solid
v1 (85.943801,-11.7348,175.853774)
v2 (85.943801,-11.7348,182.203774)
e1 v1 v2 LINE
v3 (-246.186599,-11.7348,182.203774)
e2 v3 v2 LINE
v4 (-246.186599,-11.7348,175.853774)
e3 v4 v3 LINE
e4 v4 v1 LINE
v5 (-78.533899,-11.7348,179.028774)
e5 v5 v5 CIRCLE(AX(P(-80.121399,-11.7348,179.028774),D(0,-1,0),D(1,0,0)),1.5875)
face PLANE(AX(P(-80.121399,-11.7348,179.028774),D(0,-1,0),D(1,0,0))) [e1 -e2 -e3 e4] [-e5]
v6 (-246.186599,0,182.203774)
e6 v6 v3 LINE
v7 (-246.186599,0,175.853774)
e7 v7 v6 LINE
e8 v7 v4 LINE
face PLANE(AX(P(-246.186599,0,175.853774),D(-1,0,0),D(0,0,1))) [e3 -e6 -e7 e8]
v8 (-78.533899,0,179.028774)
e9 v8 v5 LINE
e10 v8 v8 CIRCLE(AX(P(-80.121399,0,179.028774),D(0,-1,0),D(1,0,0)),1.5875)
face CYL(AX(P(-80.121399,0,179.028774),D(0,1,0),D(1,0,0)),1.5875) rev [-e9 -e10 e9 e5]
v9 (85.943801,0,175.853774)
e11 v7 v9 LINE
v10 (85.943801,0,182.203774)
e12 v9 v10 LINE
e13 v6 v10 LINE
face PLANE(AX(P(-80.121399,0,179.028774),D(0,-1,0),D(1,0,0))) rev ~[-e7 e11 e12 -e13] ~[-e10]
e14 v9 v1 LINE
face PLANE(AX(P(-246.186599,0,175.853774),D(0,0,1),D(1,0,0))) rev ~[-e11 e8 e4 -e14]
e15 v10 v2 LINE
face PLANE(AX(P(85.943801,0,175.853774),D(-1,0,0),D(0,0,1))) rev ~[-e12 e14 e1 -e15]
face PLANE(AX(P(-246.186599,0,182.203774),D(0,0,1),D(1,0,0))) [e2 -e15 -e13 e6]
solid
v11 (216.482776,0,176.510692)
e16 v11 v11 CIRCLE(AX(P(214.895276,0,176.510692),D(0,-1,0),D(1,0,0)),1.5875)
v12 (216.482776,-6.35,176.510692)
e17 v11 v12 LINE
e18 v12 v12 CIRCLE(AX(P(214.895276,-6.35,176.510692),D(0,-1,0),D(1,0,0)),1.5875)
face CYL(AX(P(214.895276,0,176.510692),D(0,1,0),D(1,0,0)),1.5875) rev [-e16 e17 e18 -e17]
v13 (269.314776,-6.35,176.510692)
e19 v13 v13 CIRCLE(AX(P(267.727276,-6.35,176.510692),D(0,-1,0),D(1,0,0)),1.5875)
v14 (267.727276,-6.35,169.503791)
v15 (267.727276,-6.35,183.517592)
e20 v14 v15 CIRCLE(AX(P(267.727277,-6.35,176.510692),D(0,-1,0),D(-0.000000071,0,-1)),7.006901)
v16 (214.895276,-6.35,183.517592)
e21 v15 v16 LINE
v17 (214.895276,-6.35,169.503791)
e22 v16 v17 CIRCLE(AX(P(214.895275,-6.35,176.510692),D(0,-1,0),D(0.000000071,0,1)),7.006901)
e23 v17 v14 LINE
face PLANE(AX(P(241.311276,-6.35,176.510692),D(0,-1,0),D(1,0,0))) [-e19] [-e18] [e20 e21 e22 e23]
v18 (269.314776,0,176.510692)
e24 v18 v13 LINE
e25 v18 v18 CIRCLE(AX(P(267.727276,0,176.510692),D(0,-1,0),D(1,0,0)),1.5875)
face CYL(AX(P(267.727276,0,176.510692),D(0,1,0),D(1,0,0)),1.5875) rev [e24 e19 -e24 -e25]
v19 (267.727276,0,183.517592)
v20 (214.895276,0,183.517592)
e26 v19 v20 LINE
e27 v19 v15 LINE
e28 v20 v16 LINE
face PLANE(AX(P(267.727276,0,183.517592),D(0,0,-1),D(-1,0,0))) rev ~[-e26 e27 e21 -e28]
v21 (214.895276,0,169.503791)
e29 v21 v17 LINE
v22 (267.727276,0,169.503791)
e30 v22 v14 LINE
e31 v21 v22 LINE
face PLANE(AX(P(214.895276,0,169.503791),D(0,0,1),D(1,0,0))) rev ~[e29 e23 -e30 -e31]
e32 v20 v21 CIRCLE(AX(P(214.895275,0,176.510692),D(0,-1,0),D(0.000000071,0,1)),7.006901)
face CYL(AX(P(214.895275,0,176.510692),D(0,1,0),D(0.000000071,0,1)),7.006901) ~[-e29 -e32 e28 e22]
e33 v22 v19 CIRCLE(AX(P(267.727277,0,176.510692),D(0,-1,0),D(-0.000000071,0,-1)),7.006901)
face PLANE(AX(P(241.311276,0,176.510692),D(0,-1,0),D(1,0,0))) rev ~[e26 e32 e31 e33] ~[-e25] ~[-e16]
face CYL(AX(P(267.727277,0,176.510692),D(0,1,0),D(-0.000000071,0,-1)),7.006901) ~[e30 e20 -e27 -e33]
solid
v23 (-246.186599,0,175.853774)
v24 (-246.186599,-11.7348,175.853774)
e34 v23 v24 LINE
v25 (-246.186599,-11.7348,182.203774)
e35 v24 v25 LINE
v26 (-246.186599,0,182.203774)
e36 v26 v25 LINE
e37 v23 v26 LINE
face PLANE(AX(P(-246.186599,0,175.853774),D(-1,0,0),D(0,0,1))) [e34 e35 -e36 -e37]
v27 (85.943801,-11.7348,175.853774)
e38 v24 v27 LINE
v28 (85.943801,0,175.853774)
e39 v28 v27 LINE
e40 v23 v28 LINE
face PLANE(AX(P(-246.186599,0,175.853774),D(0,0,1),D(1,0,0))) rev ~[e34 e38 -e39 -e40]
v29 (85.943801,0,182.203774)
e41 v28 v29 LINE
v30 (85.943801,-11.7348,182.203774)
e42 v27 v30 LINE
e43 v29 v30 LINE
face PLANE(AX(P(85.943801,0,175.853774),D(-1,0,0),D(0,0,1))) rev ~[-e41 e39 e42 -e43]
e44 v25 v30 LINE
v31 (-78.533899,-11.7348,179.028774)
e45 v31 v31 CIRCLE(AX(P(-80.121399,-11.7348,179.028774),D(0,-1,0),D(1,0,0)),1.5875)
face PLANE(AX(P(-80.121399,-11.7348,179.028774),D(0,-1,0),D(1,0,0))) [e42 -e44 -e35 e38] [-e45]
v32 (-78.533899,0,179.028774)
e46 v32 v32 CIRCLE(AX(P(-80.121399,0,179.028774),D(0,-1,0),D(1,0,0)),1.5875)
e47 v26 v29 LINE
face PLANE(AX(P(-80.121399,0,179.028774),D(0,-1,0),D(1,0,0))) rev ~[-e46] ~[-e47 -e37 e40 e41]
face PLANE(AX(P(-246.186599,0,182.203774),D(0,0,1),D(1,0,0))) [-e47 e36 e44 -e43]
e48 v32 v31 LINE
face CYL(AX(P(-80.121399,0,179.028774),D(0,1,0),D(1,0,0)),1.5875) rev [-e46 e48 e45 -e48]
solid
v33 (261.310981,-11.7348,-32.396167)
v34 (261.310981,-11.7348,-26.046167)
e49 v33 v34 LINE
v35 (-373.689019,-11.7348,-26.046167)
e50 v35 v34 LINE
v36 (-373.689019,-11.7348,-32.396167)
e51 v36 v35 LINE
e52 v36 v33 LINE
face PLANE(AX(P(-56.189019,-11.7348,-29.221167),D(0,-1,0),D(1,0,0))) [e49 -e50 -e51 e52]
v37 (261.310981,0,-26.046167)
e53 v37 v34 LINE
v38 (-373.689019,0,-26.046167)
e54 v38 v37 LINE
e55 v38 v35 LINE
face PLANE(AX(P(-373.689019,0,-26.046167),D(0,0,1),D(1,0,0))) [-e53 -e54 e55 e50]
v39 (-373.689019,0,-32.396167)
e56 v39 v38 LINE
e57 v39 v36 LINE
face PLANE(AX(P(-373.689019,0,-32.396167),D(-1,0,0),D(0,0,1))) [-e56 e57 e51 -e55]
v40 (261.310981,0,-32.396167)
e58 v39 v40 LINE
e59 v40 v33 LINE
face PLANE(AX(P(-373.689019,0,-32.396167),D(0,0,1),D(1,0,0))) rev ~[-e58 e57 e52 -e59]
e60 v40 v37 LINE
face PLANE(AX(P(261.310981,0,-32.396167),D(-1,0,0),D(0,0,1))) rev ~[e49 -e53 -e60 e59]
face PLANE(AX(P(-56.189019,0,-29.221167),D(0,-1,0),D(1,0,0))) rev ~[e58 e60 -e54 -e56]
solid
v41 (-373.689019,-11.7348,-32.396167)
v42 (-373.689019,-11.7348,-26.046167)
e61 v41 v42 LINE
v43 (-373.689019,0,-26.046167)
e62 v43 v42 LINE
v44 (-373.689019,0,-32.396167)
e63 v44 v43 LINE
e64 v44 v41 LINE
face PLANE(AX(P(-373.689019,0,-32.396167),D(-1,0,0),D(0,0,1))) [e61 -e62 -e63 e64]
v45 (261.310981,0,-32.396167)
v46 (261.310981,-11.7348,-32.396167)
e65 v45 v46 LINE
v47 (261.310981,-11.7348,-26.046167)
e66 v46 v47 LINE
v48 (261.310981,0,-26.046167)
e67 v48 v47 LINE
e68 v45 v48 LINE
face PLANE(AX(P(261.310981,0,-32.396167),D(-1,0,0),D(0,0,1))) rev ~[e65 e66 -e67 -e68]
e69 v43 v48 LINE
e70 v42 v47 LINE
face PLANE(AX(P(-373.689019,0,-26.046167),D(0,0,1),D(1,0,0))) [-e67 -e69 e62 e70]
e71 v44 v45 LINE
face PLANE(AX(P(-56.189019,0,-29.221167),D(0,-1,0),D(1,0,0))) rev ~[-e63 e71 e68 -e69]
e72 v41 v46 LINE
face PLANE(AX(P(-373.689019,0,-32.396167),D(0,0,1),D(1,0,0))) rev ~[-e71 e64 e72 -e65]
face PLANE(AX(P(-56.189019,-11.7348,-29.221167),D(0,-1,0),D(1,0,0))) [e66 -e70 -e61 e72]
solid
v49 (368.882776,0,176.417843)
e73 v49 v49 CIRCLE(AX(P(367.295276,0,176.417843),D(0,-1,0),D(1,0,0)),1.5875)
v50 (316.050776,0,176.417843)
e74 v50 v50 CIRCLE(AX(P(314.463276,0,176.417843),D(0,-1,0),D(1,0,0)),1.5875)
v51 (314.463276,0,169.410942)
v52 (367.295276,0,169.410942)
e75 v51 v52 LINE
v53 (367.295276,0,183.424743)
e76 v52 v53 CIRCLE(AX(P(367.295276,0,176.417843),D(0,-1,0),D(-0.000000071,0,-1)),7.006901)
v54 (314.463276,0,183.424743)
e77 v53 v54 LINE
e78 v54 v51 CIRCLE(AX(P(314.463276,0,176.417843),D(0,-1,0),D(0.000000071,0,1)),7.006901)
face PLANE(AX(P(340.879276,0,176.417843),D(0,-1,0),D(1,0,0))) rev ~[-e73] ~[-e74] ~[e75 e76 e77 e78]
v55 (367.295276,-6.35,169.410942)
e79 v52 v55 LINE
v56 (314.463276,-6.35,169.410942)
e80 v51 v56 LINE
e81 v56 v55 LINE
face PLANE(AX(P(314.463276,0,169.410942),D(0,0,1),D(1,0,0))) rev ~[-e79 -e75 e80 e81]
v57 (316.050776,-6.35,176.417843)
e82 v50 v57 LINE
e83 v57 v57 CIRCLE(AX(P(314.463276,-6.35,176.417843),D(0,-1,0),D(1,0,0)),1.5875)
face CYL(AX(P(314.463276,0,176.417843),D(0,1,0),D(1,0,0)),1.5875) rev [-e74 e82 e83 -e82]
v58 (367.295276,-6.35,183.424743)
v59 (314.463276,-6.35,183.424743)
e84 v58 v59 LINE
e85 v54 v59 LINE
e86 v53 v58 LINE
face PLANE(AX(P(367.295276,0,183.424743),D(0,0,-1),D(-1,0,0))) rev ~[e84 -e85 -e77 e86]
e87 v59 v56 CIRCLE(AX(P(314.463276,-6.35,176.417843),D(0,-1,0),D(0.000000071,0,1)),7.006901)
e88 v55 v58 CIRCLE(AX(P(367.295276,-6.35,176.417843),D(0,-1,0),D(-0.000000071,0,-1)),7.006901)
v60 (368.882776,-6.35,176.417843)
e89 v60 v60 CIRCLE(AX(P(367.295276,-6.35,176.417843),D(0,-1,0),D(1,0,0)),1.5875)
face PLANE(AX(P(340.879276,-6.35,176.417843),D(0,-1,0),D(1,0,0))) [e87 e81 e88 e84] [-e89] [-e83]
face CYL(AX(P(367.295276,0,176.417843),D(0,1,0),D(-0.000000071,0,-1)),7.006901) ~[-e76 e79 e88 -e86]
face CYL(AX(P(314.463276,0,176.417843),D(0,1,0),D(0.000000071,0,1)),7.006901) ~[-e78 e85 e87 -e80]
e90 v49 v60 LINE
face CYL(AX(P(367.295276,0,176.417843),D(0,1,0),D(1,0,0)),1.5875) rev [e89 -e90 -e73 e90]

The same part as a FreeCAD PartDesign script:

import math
import FreeCAD as App
import Part
import Sketcher

V = App.Vector
Q = App.Units.Quantity

doc = App.newDocument("Part")
params = doc.addObject("Spreadsheet::Sheet", "Params")
for row, (alias, value) in enumerate([
    ("sketch1_width", "25 in"),
    ("sketch1_diameter", "0.125 in"),
    ("sketch1_height", "0.25 in"),
    ("sketch1_width2", "13.076 in"),
    ("pad1_length", "0.462 in"),
    ("sketch2_width", "25 in"),
    ("sketch2_diameter", "0.125 in"),
    ("sketch2_height", "0.25 in"),
    ("sketch2_width2", "13.076 in"),
    ("pad2_length", "0.462 in"),
    ("sketch3_diameter", "0.125 in"),
    ("sketch3_width", "2.08 in"),
    ("pad3_length", "0.25 in"),
], start=1):
    params.set(f"A{row}", alias)
    params.set(f"B{row}", "=" + value)
    params.setAlias(f"B{row}", alias)

body = doc.addObject("PartDesign::Body", "Body")
body.AllowCompound = True

# Sketch on XZ plane
sketch1 = doc.addObject("Sketcher::SketchObject", "Sketch")
body.addObject(sketch1)
sketch1.AttachmentSupport = (doc.XZ_Plane, [""])
sketch1.MapMode = "FlatFace"
sketch1.addGeometry([
    Part.LineSegment(V(-373.7, -26, 0), V(-373.7, -32.4, 0)),  # 0
    Part.LineSegment(V(-373.7, -32.4, 0), V(261.3, -32.4, 0)),  # 1
    Part.LineSegment(V(261.3, -32.4, 0), V(261.3, -26, 0)),  # 2
    Part.LineSegment(V(261.3, -26, 0), V(-373.7, -26, 0)),  # 3
    Part.LineSegment(V(-246.2, 182.2, 0), V(-246.2, 175.9, 0)),  # 4
    Part.LineSegment(V(-246.2, 175.9, 0), V(85.9, 175.9, 0)),  # 5
    Part.LineSegment(V(85.9, 175.9, 0), V(85.9, 182.2, 0)),  # 6
    Part.LineSegment(V(85.9, 182.2, 0), V(-246.2, 182.2, 0)),  # 7
    Part.Circle(V(-80.1, 179, 0), V(0, 0, 1), 1.6),  # 8
], False)
sketch1.addConstraint([
    Sketcher.Constraint("Coincident", 0, 2, 1, 1),
    Sketcher.Constraint("Coincident", 1, 2, 2, 1),
    Sketcher.Constraint("Coincident", 2, 2, 3, 1),
    Sketcher.Constraint("Coincident", 3, 2, 0, 1),
    Sketcher.Constraint("Coincident", 4, 2, 5, 1),
    Sketcher.Constraint("Coincident", 5, 2, 6, 1),
    Sketcher.Constraint("Coincident", 6, 2, 7, 1),
    Sketcher.Constraint("Coincident", 7, 2, 4, 1),
    Sketcher.Constraint("Vertical", 0),
    Sketcher.Constraint("Horizontal", 1),
    Sketcher.Constraint("Vertical", 2),
    Sketcher.Constraint("Horizontal", 3),
    Sketcher.Constraint("Vertical", 4),
    Sketcher.Constraint("Horizontal", 5),
    Sketcher.Constraint("Vertical", 6),
    Sketcher.Constraint("Horizontal", 7),
    Sketcher.Constraint("Equal", 2, 4),
    Sketcher.Constraint("DistanceX", 1, 1, 1, 2, Q("25 in")),
    Sketcher.Constraint("Diameter", 8, Q("0.125 in")),
    Sketcher.Constraint("DistanceY", 0, 2, 0, 1, Q("0.25 in")),
    Sketcher.Constraint("DistanceX", 5, 1, 5, 2, Q("13.076 in")),
    Sketcher.Constraint("DistanceX", 4, 2, 8, 3, Q("6.538 in")),
    Sketcher.Constraint("DistanceY", 4, 2, 8, 3, Q("0.125 in")),
    Sketcher.Constraint("DistanceX", 8, 3, -1, 1, 80.121399),
    Sketcher.Constraint("DistanceX", 0, 2, -1, 1, 373.689019),
    Sketcher.Constraint("DistanceY", 0, 2, 8, 3, 211.424941),
    Sketcher.Constraint("DistanceY", -1, 1, 8, 3, 179.028774),
])
sketch1.setExpression("Constraints[17]", "Params.sketch1_width")
sketch1.setExpression("Constraints[18]", "Params.sketch1_diameter")
sketch1.setExpression("Constraints[19]", "Params.sketch1_height")
sketch1.setExpression("Constraints[20]", "Params.sketch1_width2")
pad1 = doc.addObject("PartDesign::Pad", "Pad")
body.addObject(pad1)
pad1.Profile = sketch1
pad1.setExpression("Length", "Params.pad1_length")
body2 = doc.addObject("PartDesign::Body", "Body001")
body2.AllowCompound = True

# Sketch on XZ plane
sketch2 = doc.addObject("Sketcher::SketchObject", "Sketch001")
body2.addObject(sketch2)
sketch2.AttachmentSupport = (doc.getObject("XZ_Plane001"), [""])
sketch2.MapMode = "FlatFace"
sketch2.addGeometry([
    Part.LineSegment(V(-373.7, -26, 0), V(-373.7, -32.4, 0)),  # 0
    Part.LineSegment(V(-373.7, -32.4, 0), V(261.3, -32.4, 0)),  # 1
    Part.LineSegment(V(261.3, -32.4, 0), V(261.3, -26, 0)),  # 2
    Part.LineSegment(V(261.3, -26, 0), V(-373.7, -26, 0)),  # 3
    Part.LineSegment(V(-246.2, 182.2, 0), V(-246.2, 175.9, 0)),  # 4
    Part.LineSegment(V(-246.2, 175.9, 0), V(85.9, 175.9, 0)),  # 5
    Part.LineSegment(V(85.9, 175.9, 0), V(85.9, 182.2, 0)),  # 6
    Part.LineSegment(V(85.9, 182.2, 0), V(-246.2, 182.2, 0)),  # 7
    Part.Circle(V(-80.1, 179, 0), V(0, 0, 1), 1.6),  # 8
], False)
sketch2.addConstraint([
    Sketcher.Constraint("Coincident", 0, 2, 1, 1),
    Sketcher.Constraint("Coincident", 1, 2, 2, 1),
    Sketcher.Constraint("Coincident", 2, 2, 3, 1),
    Sketcher.Constraint("Coincident", 3, 2, 0, 1),
    Sketcher.Constraint("Coincident", 4, 2, 5, 1),
    Sketcher.Constraint("Coincident", 5, 2, 6, 1),
    Sketcher.Constraint("Coincident", 6, 2, 7, 1),
    Sketcher.Constraint("Coincident", 7, 2, 4, 1),
    Sketcher.Constraint("Vertical", 0),
    Sketcher.Constraint("Horizontal", 1),
    Sketcher.Constraint("Vertical", 2),
    Sketcher.Constraint("Horizontal", 3),
    Sketcher.Constraint("Vertical", 4),
    Sketcher.Constraint("Horizontal", 5),
    Sketcher.Constraint("Vertical", 6),
    Sketcher.Constraint("Horizontal", 7),
    Sketcher.Constraint("Equal", 2, 4),
    Sketcher.Constraint("DistanceX", 1, 1, 1, 2, Q("25 in")),
    Sketcher.Constraint("Diameter", 8, Q("0.125 in")),
    Sketcher.Constraint("DistanceY", 0, 2, 0, 1, Q("0.25 in")),
    Sketcher.Constraint("DistanceX", 5, 1, 5, 2, Q("13.076 in")),
    Sketcher.Constraint("DistanceX", 4, 2, 8, 3, Q("6.538 in")),
    Sketcher.Constraint("DistanceY", 4, 2, 8, 3, Q("0.125 in")),
    Sketcher.Constraint("DistanceX", 8, 3, -1, 1, 80.121399),
    Sketcher.Constraint("DistanceX", 0, 2, -1, 1, 373.689019),
    Sketcher.Constraint("DistanceY", 0, 2, 8, 3, 211.424941),
    Sketcher.Constraint("DistanceY", -1, 1, 8, 3, 179.028774),
])
sketch2.setExpression("Constraints[17]", "Params.sketch2_width")
sketch2.setExpression("Constraints[18]", "Params.sketch2_diameter")
sketch2.setExpression("Constraints[19]", "Params.sketch2_height")
sketch2.setExpression("Constraints[20]", "Params.sketch2_width2")
pad2 = doc.addObject("PartDesign::Pad", "Pad001")
body2.addObject(pad2)
pad2.Profile = sketch2
pad2.setExpression("Length", "Params.pad2_length")
body3 = doc.addObject("PartDesign::Body", "Body002")
body3.AllowCompound = True

# Sketch on XZ plane
sketch3 = doc.addObject("Sketcher::SketchObject", "Sketch002")
body3.addObject(sketch3)
sketch3.AttachmentSupport = (doc.getObject("XZ_Plane002"), [""])
sketch3.MapMode = "FlatFace"
sketch3.addGeometry([
    Part.LineSegment(V(267.7, 183.5, 0), V(214.9, 183.5, 0)),  # 0
    Part.ArcOfCircle(Part.Circle(V(214.9, 176.5, 0), V(0, 0, 1), 7), math.radians(90), math.radians(270)),  # 1
    Part.LineSegment(V(214.9, 169.5, 0), V(267.7, 169.5, 0)),  # 2
    Part.ArcOfCircle(Part.Circle(V(267.7, 176.5, 0), V(0, 0, 1), 7), math.radians(-90), math.radians(90)),  # 3
    Part.Circle(V(214.9, 176.5, 0), V(0, 0, 1), 1.6),  # 4
    Part.Circle(V(267.7, 176.5, 0), V(0, 0, 1), 1.6),  # 5
    Part.LineSegment(V(367.3, 183.4, 0), V(314.5, 183.4, 0)),  # 6
    Part.ArcOfCircle(Part.Circle(V(314.5, 176.4, 0), V(0, 0, 1), 7), math.radians(90), math.radians(270)),  # 7
    Part.LineSegment(V(314.5, 169.4, 0), V(367.3, 169.4, 0)),  # 8
    Part.ArcOfCircle(Part.Circle(V(367.3, 176.4, 0), V(0, 0, 1), 7), math.radians(-90), math.radians(90)),  # 9
    Part.Circle(V(314.5, 176.4, 0), V(0, 0, 1), 1.6),  # 10
    Part.Circle(V(367.3, 176.4, 0), V(0, 0, 1), 1.6),  # 11
], False)
sketch3.addConstraint([
    Sketcher.Constraint("Tangent", 0, 2, 1, 1),
    Sketcher.Constraint("Tangent", 1, 2, 2, 1),
    Sketcher.Constraint("Tangent", 2, 2, 3, 1),
    Sketcher.Constraint("Tangent", 3, 2, 0, 1),
    Sketcher.Constraint("Tangent", 6, 2, 7, 1),
    Sketcher.Constraint("Tangent", 7, 2, 8, 1),
    Sketcher.Constraint("Tangent", 8, 2, 9, 1),
    Sketcher.Constraint("Tangent", 9, 2, 6, 1),
    Sketcher.Constraint("Horizontal", 0),
    Sketcher.Constraint("Horizontal", 2),
    Sketcher.Constraint("Horizontal", 6),
    Sketcher.Constraint("Horizontal", 8),
    Sketcher.Constraint("Coincident", 4, 3, 1, 3),
    Sketcher.Constraint("Coincident", 5, 3, 3, 3),
    Sketcher.Constraint("Coincident", 10, 3, 7, 3),
    Sketcher.Constraint("Coincident", 11, 3, 9, 3),
    Sketcher.Constraint("Equal", 4, 5),
    Sketcher.Constraint("Equal", 3, 7),
    Sketcher.Constraint("Equal", 5, 10),
    Sketcher.Constraint("Equal", 10, 11),
    Sketcher.Constraint("Equal", 2, 6),
    Sketcher.Constraint("Diameter", 4, Q("0.125 in")),
    Sketcher.Constraint("DistanceX", 4, 3, 9, 3, Q("6 in")),
    Sketcher.Constraint("DistanceX", 0, 2, 0, 1, Q("2.08 in")),
    Sketcher.Constraint("Radius", 1, 7.006901),
    Sketcher.Constraint("DistanceY", -1, 1, 1, 3, 176.510692),
    Sketcher.Constraint("DistanceY", -1, 1, 8, 2, 169.410942),
    Sketcher.Constraint("DistanceX", -1, 1, 1, 3, 214.895275),
])
sketch3.setExpression("Constraints[21]", "Params.sketch3_diameter")
sketch3.setExpression("Constraints[23]", "Params.sketch3_width")
pad3 = doc.addObject("PartDesign::Pad", "Pad002")
body3.addObject(pad3)
pad3.Profile = sketch3
pad3.setExpression("Length", "Params.pad3_length")

doc.recompute()
